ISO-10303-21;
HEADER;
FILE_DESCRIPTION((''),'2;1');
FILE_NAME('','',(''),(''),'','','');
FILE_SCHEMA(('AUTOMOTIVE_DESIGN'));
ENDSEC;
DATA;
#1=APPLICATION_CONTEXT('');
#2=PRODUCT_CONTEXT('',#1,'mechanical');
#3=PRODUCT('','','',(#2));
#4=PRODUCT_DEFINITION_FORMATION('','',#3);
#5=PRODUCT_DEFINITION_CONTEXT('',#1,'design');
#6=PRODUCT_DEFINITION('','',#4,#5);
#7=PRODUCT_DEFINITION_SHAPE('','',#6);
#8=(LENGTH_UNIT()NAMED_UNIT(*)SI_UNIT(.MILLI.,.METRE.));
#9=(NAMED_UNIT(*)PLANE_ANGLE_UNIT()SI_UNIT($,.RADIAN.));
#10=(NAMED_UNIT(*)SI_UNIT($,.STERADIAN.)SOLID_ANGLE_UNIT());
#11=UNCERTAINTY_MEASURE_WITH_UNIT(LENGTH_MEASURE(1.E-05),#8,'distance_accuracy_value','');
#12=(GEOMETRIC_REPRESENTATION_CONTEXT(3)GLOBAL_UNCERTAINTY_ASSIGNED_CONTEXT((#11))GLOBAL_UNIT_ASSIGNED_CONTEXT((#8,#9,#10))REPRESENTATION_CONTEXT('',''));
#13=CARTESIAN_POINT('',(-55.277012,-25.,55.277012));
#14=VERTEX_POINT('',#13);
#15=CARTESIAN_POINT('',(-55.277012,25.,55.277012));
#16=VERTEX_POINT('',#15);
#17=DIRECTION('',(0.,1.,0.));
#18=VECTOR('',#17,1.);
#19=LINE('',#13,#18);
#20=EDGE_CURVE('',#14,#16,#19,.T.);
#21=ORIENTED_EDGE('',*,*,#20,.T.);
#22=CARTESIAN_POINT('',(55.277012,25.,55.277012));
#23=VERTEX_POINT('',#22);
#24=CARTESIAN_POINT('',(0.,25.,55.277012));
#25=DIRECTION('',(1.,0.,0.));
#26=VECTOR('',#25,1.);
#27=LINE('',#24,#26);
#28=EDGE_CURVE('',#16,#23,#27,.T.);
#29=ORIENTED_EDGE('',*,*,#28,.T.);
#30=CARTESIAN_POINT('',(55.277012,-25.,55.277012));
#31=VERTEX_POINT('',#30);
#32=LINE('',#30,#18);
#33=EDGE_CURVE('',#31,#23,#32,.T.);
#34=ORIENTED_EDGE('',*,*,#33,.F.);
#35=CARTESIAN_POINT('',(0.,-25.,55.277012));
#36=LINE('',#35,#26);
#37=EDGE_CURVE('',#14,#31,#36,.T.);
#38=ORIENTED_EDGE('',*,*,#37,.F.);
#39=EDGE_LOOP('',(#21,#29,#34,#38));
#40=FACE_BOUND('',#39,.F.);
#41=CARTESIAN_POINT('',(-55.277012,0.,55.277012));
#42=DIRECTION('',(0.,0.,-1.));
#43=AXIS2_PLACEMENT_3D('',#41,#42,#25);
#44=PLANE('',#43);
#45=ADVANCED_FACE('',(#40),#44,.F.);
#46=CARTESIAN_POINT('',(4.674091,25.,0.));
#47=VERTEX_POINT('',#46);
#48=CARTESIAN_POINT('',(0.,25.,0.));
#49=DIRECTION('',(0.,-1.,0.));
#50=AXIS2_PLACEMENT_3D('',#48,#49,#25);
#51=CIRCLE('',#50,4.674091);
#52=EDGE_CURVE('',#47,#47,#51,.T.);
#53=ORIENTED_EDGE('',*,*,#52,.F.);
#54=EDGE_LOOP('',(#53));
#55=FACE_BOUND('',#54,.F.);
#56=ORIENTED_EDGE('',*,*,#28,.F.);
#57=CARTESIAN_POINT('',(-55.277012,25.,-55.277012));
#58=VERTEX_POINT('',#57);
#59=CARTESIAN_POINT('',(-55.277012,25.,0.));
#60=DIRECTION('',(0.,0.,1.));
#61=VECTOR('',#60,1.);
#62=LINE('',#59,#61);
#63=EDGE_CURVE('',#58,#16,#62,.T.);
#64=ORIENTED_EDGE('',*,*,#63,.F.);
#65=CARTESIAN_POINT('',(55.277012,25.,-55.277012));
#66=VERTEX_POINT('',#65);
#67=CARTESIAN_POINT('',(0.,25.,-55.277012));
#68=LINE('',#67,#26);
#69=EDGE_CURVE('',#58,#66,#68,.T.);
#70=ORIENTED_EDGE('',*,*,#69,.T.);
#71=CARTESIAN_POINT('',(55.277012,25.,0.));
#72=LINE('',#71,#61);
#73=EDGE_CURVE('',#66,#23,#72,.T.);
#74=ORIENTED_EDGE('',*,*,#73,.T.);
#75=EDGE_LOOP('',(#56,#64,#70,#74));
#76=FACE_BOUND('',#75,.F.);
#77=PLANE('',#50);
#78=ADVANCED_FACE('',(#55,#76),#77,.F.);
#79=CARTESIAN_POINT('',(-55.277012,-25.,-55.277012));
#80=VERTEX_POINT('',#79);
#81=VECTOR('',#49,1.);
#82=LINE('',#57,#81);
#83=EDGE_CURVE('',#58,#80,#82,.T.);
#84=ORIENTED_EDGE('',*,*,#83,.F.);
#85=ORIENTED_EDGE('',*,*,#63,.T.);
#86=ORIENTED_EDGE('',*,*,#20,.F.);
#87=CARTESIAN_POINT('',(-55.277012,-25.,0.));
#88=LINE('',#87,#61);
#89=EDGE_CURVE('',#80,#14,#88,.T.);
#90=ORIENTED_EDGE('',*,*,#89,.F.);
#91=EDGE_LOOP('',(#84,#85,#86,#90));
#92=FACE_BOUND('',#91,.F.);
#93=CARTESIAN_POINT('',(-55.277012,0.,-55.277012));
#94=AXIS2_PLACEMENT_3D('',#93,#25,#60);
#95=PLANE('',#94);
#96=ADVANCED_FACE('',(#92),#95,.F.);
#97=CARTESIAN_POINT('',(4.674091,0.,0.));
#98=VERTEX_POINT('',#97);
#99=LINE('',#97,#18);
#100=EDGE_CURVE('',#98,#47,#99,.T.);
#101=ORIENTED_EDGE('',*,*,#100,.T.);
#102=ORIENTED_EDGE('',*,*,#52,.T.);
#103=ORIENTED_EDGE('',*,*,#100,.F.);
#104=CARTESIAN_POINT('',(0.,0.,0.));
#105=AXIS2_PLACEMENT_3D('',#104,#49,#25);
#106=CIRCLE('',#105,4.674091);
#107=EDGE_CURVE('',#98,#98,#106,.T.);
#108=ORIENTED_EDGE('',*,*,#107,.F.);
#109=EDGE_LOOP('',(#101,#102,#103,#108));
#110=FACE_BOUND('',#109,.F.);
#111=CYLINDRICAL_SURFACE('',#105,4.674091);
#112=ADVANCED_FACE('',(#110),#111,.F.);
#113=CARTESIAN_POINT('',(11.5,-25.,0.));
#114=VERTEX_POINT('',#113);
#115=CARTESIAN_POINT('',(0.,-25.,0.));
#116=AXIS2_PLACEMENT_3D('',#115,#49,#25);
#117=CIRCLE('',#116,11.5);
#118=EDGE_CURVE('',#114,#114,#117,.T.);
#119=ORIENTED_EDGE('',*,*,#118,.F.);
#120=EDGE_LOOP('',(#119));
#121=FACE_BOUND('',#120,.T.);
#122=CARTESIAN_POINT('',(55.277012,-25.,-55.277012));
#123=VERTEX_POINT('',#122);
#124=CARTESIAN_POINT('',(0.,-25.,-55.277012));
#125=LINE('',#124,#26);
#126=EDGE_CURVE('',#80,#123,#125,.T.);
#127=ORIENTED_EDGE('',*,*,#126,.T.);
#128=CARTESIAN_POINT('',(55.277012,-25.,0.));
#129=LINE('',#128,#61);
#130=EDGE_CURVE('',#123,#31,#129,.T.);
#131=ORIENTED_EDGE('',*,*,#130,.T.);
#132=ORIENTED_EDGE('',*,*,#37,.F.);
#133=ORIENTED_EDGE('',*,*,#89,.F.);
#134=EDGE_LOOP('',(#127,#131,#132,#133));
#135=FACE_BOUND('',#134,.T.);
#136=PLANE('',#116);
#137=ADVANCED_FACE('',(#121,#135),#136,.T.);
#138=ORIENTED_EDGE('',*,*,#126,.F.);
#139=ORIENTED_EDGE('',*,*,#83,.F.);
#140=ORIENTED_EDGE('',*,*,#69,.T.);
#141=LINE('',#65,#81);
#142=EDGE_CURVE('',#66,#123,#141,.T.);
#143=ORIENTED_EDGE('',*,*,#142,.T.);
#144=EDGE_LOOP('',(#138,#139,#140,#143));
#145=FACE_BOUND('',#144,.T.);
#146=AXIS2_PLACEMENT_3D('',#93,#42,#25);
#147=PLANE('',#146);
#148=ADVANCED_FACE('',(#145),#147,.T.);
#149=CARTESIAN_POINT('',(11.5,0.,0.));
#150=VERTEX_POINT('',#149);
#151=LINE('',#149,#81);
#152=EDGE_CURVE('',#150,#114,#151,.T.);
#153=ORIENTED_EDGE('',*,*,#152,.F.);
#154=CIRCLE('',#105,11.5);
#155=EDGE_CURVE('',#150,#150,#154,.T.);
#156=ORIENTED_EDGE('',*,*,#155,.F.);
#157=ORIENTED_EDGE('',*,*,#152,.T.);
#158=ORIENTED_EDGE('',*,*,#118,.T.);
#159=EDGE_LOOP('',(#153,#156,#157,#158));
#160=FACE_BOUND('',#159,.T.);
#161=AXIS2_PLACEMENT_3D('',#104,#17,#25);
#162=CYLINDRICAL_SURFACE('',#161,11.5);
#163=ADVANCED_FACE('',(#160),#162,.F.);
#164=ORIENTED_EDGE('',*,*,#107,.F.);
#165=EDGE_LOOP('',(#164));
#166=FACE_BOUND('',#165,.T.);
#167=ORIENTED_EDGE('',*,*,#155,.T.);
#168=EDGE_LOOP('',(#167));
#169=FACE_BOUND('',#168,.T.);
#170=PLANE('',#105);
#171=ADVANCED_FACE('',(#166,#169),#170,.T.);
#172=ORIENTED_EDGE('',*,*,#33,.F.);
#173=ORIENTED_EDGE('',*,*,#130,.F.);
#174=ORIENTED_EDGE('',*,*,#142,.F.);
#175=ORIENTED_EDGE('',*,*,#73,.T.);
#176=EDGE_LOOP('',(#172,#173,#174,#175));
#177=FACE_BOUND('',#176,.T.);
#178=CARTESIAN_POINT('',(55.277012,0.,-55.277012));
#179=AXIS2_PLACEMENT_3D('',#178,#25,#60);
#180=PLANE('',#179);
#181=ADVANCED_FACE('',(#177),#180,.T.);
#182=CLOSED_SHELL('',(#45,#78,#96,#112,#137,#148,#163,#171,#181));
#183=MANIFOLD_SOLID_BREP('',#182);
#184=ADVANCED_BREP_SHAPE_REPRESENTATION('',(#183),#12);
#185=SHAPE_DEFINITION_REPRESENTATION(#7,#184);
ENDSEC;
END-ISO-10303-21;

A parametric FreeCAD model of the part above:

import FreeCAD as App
import Part
import Sketcher
from FreeCAD import Vector

doc = App.newDocument("Part")
body = doc.addObject("PartDesign::Body", "Body")

sketch1 = body.newObject("Sketcher::SketchObject", "Sketch")
sketch1.AttachmentSupport = (doc.getObject("XZ_Plane"), [""])
sketch1.MapMode = "FlatFace"
sketch1.addGeometry(Part.LineSegment(Vector(-55, 55, 0), Vector(-55, -55, 0)), False)
sketch1.addGeometry(Part.LineSegment(Vector(-55, -55, 0), Vector(55, -55, 0)), False)
sketch1.addGeometry(Part.LineSegment(Vector(55, -55, 0), Vector(55, 55, 0)), False)
sketch1.addGeometry(Part.LineSegment(Vector(55, 55, 0), Vector(-55, 55, 0)), False)
sketch1.addConstraint(Sketcher.Constraint("Coincident", 0, 2, 1, 1))
sketch1.addConstraint(Sketcher.Constraint("Coincident", 1, 2, 2, 1))
sketch1.addConstraint(Sketcher.Constraint("Coincident", 2, 2, 3, 1))
sketch1.addConstraint(Sketcher.Constraint("Coincident", 3, 2, 0, 1))
sketch1.addConstraint(Sketcher.Constraint("Vertical", 0))
sketch1.addConstraint(Sketcher.Constraint("Horizontal", 1))
sketch1.addConstraint(Sketcher.Constraint("Vertical", 2))
sketch1.addConstraint(Sketcher.Constraint("Horizontal", 3))
sketch1.addConstraint(Sketcher.Constraint("Symmetric", 0, 2, 2, 2, -1, 1))
sketch1.addConstraint(Sketcher.Constraint("Equal", 3, 0))
sketch1.addConstraint(Sketcher.Constraint("DistanceX", 1, 1, 1, 2, 110.554024))
pad1 = body.newObject("PartDesign::Pad", "Pad")
pad1.Profile = sketch1
pad1.Length = 50
pad1.Midplane = True

sketch2 = body.newObject("Sketcher::SketchObject", "Sketch001")
sketch2.AttachmentSupport = (doc.getObject("XZ_Plane"), [""])
sketch2.MapMode = "FlatFace"
sketch2.addGeometry(Part.Circle(Vector(0, 0, 0), Vector(0, 0, 1), 12), False)
sketch2.addConstraint(Sketcher.Constraint("Coincident", 0, 3, -1, 1))
sketch2.addConstraint(Sketcher.Constraint("Diameter", 0, 23.0))
pocket1 = body.newObject("PartDesign::Pocket", "Pocket")
pocket1.Profile = sketch2
pocket1.Type = "ThroughAll"
pocket1.Reversed = True

sketch3 = body.newObject("Sketcher::SketchObject", "Sketch002")
sketch3.AttachmentSupport = (doc.getObject("XZ_Plane"), [""])
sketch3.MapMode = "FlatFace"
sketch3.addGeometry(Part.Circle(Vector(0, 0, 0), Vector(0, 0, 1), 4.7), False)
sketch3.addConstraint(Sketcher.Constraint("Coincident", 0, 3, -1, 1))
sketch3.addConstraint(Sketcher.Constraint("Diameter", 0, 9.348182))
pocket2 = body.newObject("PartDesign::Pocket", "Pocket001")
pocket2.Profile = sketch3
pocket2.Type = "ThroughAll"

doc.recompute()
